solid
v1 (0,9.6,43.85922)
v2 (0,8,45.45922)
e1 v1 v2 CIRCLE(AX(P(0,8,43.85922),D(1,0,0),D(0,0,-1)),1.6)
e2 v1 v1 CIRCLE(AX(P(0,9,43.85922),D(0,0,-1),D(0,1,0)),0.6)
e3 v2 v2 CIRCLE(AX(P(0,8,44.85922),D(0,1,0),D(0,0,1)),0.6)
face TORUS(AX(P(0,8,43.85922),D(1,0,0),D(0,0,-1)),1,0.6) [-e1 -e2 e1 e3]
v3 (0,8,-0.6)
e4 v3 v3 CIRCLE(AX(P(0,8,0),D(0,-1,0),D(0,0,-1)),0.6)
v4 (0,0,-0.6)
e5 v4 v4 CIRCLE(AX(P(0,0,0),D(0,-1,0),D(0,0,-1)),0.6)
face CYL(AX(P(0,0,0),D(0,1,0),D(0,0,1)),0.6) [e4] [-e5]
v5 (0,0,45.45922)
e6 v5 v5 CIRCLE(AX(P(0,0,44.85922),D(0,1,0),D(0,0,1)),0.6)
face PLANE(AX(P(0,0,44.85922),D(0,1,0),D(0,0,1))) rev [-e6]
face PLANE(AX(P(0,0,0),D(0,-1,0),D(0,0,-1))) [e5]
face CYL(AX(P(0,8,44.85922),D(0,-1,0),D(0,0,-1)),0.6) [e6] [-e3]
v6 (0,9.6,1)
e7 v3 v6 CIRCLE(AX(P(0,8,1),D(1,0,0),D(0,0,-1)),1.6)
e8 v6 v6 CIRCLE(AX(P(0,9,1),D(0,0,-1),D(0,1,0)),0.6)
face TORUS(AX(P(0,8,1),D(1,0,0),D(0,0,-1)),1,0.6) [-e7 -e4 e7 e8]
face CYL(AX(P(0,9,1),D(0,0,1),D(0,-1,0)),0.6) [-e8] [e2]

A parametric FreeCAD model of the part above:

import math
import FreeCAD as App
import Part
import Sketcher

doc = App.newDocument("Part")
body = doc.addObject("PartDesign::Body", "Body")

sketch1 = body.newObject("Sketcher::SketchObject", "Sketch")
sketch1.AttachmentSupport = (doc.getObject("XZ_Plane"), [""])
sketch1.MapMode = "FlatFace"
sketch1.addGeometry(Part.Circle(App.Vector(0, 0, 0), App.Vector(0, 0, 1), 0.6), False)
sketch1.addConstraint([
    Sketcher.Constraint("Coincident", 0, 3, -1, 1),
    Sketcher.Constraint("Diameter", 0, 1.2),
])

sketch2 = body.newObject("Sketcher::SketchObject", "Sketch001")
sketch2.AttachmentSupport = (doc.getObject("YZ_Plane"), [""])
sketch2.MapMode = "FlatFace"
sketch2.addGeometry([
    Part.LineSegment(App.Vector(0, 0, 0), App.Vector(8, 0, 0)),
    Part.ArcOfCircle(Part.Circle(App.Vector(8, 1, 0), App.Vector(0, 0, 1), 1), math.radians(-90), math.radians(0)),
    Part.LineSegment(App.Vector(9, 1, 0), App.Vector(9, 43.9, 0)),
    Part.ArcOfCircle(Part.Circle(App.Vector(8, 43.9, 0), App.Vector(0, 0, 1), 1), math.radians(0), math.radians(90)),
    Part.LineSegment(App.Vector(8, 44.9, 0), App.Vector(0, 44.9, 0)),
], False)
sketch2.addConstraint([
    Sketcher.Constraint("Tangent", 0, 2, 1, 1),
    Sketcher.Constraint("Tangent", 1, 2, 2, 1),
    Sketcher.Constraint("Tangent", 2, 2, 3, 1),
    Sketcher.Constraint("Tangent", 3, 2, 4, 1),
    Sketcher.Constraint("Horizontal", 0),
    Sketcher.Constraint("Vertical", 2),
    Sketcher.Constraint("Horizontal", 4),
    Sketcher.Constraint("Coincident", 0, 1, -1, 1),
    Sketcher.Constraint("Equal", 1, 3),
    Sketcher.Constraint("PointOnObject", 4, 2, -2),
    Sketcher.Constraint("Radius", 1, 1.0),
    Sketcher.Constraint("DistanceX", 0, 1, 0, 2, 8.0),
    Sketcher.Constraint("DistanceY", 2, 1, 2, 2, 42.85922),
])
doc.recompute()

additivepipe = body.newObject("PartDesign::AdditivePipe", "AdditivePipe")
additivepipe.Profile = sketch1
additivepipe.Spine = (sketch2, ["Edge1", "Edge2", "Edge3", "Edge4", "Edge5"])

doc.recompute()
